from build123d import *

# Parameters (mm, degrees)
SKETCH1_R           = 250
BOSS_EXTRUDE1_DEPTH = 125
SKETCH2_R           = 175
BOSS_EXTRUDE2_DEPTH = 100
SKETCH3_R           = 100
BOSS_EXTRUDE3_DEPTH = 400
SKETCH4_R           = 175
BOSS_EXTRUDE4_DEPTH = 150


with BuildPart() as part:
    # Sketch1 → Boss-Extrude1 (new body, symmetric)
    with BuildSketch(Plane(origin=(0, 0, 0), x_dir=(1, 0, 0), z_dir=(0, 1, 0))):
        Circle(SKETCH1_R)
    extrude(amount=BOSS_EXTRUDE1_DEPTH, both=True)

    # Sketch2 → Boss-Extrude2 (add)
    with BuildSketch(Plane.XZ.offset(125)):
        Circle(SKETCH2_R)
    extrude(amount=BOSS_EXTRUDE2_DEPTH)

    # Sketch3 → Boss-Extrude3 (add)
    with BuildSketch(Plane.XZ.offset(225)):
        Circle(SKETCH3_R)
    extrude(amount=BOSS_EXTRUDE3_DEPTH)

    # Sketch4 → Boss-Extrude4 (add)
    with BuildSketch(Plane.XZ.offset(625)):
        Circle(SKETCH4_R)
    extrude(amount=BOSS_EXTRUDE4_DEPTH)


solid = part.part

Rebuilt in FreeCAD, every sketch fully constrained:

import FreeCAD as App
import Part
import Sketcher
from FreeCAD import Vector

doc = App.newDocument("Part")
body = doc.addObject("PartDesign::Body", "Body")

sketch1 = doc.addObject("Sketcher::SketchObject", "Sketch")
body.addObject(sketch1)
sketch1.AttachmentSupport = (doc.XZ_Plane, [""])
sketch1.MapMode = "FlatFace"
sketch1.addGeometry(Part.Circle(Vector(0, 0, 0), Vector(0, 0, 1), 250), False)
sketch1.addConstraint([
    Sketcher.Constraint("Coincident", 0, 3, -1, 1),
    Sketcher.Constraint("Diameter", 0, 500.0),
])
pad1 = doc.addObject("PartDesign::Pad", "Pad")
body.addObject(pad1)
pad1.Profile = sketch1
pad1.Length = 250
pad1.Midplane = True

sketch2 = doc.addObject("Sketcher::SketchObject", "Sketch001")
body.addObject(sketch2)
sketch2.AttachmentSupport = (doc.XZ_Plane, [""])
sketch2.MapMode = "FlatFace"
sketch2.AttachmentOffset = App.Placement(Vector(0, 0, 125), App.Rotation())
sketch2.addGeometry(Part.Circle(Vector(0, 0, 0), Vector(0, 0, 1), 175), False)
sketch2.addConstraint([
    Sketcher.Constraint("Coincident", 0, 3, -1, 1),
    Sketcher.Constraint("Diameter", 0, 350.0),
])
pad2 = doc.addObject("PartDesign::Pad", "Pad001")
body.addObject(pad2)
pad2.Profile = sketch2
pad2.Length = 100

sketch3 = doc.addObject("Sketcher::SketchObject", "Sketch002")
body.addObject(sketch3)
sketch3.AttachmentSupport = (doc.XZ_Plane, [""])
sketch3.MapMode = "FlatFace"
sketch3.AttachmentOffset = App.Placement(Vector(0, 0, 225), App.Rotation())
sketch3.addGeometry(Part.Circle(Vector(0, 0, 0), Vector(0, 0, 1), 100), False)
sketch3.addConstraint([
    Sketcher.Constraint("Coincident", 0, 3, -1, 1),
    Sketcher.Constraint("Diameter", 0, 200.0),
])
pad3 = doc.addObject("PartDesign::Pad", "Pad002")
body.addObject(pad3)
pad3.Profile = sketch3
pad3.Length = 400

sketch4 = doc.addObject("Sketcher::SketchObject", "Sketch003")
body.addObject(sketch4)
sketch4.AttachmentSupport = (doc.XZ_Plane, [""])
sketch4.MapMode = "FlatFace"
sketch4.AttachmentOffset = App.Placement(Vector(0, 0, 625), App.Rotation())
sketch4.addGeometry(Part.Circle(Vector(0, 0, 0), Vector(0, 0, 1), 175), False)
sketch4.addConstraint([
    Sketcher.Constraint("Coincident", 0, 3, -1, 1),
    Sketcher.Constraint("Diameter", 0, 350.0),
])
pad4 = doc.addObject("PartDesign::Pad", "Pad003")
body.addObject(pad4)
pad4.Profile = sketch4
pad4.Length = 150

doc.recompute()
